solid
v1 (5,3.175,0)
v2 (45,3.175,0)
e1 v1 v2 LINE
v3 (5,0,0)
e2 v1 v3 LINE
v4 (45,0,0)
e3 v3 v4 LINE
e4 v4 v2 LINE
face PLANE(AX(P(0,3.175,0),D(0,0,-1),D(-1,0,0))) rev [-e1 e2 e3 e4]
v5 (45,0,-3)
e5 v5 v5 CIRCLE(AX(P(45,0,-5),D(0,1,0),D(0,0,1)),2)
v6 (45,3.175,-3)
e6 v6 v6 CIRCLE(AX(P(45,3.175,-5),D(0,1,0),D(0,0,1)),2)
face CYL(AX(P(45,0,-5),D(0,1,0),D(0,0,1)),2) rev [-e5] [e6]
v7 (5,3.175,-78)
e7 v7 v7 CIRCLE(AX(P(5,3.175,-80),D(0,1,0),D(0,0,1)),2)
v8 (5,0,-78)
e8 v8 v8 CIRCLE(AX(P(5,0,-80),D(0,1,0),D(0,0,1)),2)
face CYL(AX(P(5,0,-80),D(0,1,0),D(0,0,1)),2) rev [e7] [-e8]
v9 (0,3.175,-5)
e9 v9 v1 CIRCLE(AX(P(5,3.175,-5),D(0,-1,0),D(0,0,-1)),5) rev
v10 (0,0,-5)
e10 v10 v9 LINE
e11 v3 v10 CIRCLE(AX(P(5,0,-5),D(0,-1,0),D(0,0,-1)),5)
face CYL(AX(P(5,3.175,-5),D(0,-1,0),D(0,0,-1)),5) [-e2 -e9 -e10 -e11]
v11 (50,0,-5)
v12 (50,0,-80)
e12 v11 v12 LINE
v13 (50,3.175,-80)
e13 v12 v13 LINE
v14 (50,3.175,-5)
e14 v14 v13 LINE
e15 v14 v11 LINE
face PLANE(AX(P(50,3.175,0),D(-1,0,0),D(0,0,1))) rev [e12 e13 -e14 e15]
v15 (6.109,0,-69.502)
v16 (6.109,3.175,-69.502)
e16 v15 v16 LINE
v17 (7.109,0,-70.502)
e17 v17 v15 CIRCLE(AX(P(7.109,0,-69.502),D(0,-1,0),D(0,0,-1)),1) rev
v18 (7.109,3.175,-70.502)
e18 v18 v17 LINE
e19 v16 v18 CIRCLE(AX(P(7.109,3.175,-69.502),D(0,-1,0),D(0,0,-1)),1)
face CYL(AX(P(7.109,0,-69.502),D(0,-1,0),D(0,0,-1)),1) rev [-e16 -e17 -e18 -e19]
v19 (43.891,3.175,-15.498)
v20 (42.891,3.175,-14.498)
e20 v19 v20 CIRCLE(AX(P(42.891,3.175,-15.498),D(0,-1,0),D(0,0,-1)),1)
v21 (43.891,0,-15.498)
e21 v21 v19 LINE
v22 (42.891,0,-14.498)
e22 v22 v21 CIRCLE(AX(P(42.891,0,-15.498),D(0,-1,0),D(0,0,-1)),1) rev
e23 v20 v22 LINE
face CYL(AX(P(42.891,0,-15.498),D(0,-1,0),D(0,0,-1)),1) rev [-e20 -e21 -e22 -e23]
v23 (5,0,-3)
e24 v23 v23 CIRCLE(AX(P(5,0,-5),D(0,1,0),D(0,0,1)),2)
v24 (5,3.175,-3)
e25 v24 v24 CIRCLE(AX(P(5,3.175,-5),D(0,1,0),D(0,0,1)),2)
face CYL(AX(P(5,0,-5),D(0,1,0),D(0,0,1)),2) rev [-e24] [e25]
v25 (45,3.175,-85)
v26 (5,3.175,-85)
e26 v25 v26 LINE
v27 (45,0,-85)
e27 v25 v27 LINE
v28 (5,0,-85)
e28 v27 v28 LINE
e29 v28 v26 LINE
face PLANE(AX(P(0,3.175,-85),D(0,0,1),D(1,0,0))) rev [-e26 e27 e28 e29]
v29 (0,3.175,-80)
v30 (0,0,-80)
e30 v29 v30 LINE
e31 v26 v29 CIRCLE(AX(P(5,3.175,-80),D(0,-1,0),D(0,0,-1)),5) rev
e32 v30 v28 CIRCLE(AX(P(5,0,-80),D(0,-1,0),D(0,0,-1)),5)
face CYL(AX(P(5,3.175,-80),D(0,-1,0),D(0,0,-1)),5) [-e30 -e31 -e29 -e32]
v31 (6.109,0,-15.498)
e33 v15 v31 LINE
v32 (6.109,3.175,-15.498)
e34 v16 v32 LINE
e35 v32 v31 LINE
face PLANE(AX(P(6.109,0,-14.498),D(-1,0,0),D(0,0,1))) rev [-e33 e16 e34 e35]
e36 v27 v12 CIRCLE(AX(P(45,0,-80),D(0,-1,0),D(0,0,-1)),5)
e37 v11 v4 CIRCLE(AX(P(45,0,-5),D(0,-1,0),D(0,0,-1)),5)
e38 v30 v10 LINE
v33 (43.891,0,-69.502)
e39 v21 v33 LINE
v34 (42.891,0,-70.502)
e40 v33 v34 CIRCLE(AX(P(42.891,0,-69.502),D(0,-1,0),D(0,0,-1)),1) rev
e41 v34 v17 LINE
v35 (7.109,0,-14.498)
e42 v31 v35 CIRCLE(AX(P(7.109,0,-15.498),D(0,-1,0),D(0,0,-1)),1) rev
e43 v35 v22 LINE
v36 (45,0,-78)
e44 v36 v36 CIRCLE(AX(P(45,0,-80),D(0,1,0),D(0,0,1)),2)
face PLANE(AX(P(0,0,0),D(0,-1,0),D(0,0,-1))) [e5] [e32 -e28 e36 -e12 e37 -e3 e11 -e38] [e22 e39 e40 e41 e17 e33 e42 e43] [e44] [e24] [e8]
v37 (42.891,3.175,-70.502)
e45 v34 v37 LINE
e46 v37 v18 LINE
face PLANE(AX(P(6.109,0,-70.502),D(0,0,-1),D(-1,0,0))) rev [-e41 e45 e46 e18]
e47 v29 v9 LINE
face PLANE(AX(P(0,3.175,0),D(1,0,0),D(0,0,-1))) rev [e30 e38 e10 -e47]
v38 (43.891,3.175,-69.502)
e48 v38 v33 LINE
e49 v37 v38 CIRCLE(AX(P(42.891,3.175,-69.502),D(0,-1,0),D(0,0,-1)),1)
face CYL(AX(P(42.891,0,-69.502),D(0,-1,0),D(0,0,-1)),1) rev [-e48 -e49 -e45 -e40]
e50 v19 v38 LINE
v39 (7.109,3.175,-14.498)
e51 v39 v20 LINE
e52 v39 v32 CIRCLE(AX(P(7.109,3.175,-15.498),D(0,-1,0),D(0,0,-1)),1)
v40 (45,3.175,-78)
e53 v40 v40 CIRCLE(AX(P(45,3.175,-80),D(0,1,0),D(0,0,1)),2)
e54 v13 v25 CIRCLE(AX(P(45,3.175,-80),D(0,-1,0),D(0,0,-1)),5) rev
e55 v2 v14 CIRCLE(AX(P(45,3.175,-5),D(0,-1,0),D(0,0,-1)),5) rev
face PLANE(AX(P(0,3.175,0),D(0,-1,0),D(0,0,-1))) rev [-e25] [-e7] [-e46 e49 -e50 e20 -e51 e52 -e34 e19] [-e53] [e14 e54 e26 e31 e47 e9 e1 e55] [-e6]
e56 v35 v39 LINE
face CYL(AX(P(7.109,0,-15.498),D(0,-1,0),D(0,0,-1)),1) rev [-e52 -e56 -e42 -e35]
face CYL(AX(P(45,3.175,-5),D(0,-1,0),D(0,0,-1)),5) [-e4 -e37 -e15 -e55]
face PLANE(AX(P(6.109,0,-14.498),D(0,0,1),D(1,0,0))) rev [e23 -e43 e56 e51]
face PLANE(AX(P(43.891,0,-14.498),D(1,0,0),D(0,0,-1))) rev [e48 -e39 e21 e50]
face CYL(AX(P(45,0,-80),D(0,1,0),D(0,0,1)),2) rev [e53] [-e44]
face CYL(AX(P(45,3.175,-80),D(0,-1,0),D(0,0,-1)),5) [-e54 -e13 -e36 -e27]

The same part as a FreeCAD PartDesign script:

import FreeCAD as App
import Part
import Sketcher

V = App.Vector


def edges_at(feature, points):
    """Names of the edges that pass closest to the given points."""
    edges = feature.Shape.Edges
    near = lambda p: min(range(len(edges)), key=lambda i: edges[i].distToShape(Part.Vertex(*p))[0])
    return sorted({f"Edge{near(p) + 1}" for p in points})

doc = App.newDocument("Part")
body = doc.addObject("PartDesign::Body", "Body")

# Sketch on XZ plane
sketch1 = body.newObject("Sketcher::SketchObject", "Sketch")
sketch1.AttachmentSupport = (doc.getObject("XZ_Plane"), [""])
sketch1.MapMode = "FlatFace"
sketch1.addGeometry([
    Part.LineSegment(V(0, -85, 0), V(0, 0, 0)),
    Part.LineSegment(V(0, 0, 0), V(50, 0, 0)),
    Part.LineSegment(V(50, 0, 0), V(50, -85, 0)),
    Part.LineSegment(V(50, -85, 0), V(0, -85, 0)),
], False)
sketch1.addConstraint([
    Sketcher.Constraint("Coincident", 0, 2, 1, 1),
    Sketcher.Constraint("Coincident", 1, 2, 2, 1),
    Sketcher.Constraint("Coincident", 2, 2, 3, 1),
    Sketcher.Constraint("Coincident", 3, 2, 0, 1),
    Sketcher.Constraint("Vertical", 0),
    Sketcher.Constraint("Horizontal", 1),
    Sketcher.Constraint("Vertical", 2),
    Sketcher.Constraint("Horizontal", 3),
    Sketcher.Constraint("Coincident", 0, 2, -1, 1),
    Sketcher.Constraint("DistanceX", 1, 1, 1, 2, 50.0),
    Sketcher.Constraint("DistanceY", 0, 1, 0, 2, 85.0),
])
pad1 = body.newObject("PartDesign::Pad", "Pad")
pad1.Profile = sketch1
pad1.Length = 3.175
pad1.Reversed = True

# Sketch on XZ plane
sketch2 = body.newObject("Sketcher::SketchObject", "Sketch001")
sketch2.AttachmentSupport = (doc.getObject("XZ_Plane"), [""])
sketch2.MapMode = "FlatFace"
sketch2.AttachmentOffset = App.Placement(V(0, 0, -3.175), App.Rotation())
sketch2.addGeometry([
    Part.LineSegment(V(6, -71, 0), V(6, -14, 0)),
    Part.LineSegment(V(6, -14, 0), V(44, -14, 0)),
    Part.LineSegment(V(44, -14, 0), V(44, -71, 0)),
    Part.LineSegment(V(44, -71, 0), V(6, -71, 0)),
], False)
sketch2.addConstraint([
    Sketcher.Constraint("Coincident", 0, 2, 1, 1),
    Sketcher.Constraint("Coincident", 1, 2, 2, 1),
    Sketcher.Constraint("Coincident", 2, 2, 3, 1),
    Sketcher.Constraint("Coincident", 3, 2, 0, 1),
    Sketcher.Constraint("Vertical", 0),
    Sketcher.Constraint("Horizontal", 1),
    Sketcher.Constraint("Vertical", 2),
    Sketcher.Constraint("Horizontal", 3),
    Sketcher.Constraint("DistanceX", 1, 1, 1, 2, 37.782),
    Sketcher.Constraint("DistanceY", 0, 1, 0, 2, 56.004),
    Sketcher.Constraint("DistanceX", -1, 1, 0, 2, 6.109),
    Sketcher.Constraint("DistanceY", 0, 2, -1, 1, 14.498),
])
pocket1 = body.newObject("PartDesign::Pocket", "Pocket")
pocket1.Profile = sketch2
pocket1.Type = "ThroughAll"
pocket1.Reversed = True
doc.recompute()

fillet = body.newObject("PartDesign::Fillet", "Fillet")
fillet.Base = (pocket1, edges_at(pocket1, [
    (6.109, 1.587, -14.498),
    (6.109, 1.587, -70.502),
    (43.891, 1.587, -70.502),
    (43.891, 1.587, -14.498),
]))
fillet.Radius = 1
doc.recompute()

fillet2 = body.newObject("PartDesign::Fillet", "Fillet001")
fillet2.Base = (fillet, edges_at(fillet, [
    (0, 1.587, -85),
    (50, 1.587, -85),
    (50, 1.587, 0),
    (0, 1.587, 0),
]))
fillet2.Radius = 5

# Sketch on XZ plane
sketch3 = body.newObject("Sketcher::SketchObject", "Sketch002")
sketch3.AttachmentSupport = (doc.getObject("XZ_Plane"), [""])
sketch3.MapMode = "FlatFace"
sketch3.AttachmentOffset = App.Placement(V(0, 0, -3.175), App.Rotation())
sketch3.addGeometry([
    Part.Circle(V(5, -5, 0), V(0, 0, 1), 2),
    Part.Circle(V(45, -5, 0), V(0, 0, 1), 2),
    Part.Circle(V(45, -80, 0), V(0, 0, 1), 2),
    Part.Circle(V(5, -80, 0), V(0, 0, 1), 2),
], False)
sketch3.addConstraint([
    Sketcher.Constraint("Equal", 0, 1),
    Sketcher.Constraint("Equal", 1, 2),
    Sketcher.Constraint("Equal", 2, 3),
    Sketcher.Constraint("Horizontal", 0, 3, 1, 3),
    Sketcher.Constraint("Horizontal", 2, 3, 3, 3),
    Sketcher.Constraint("Vertical", 1, 3, 2, 3),
    Sketcher.Constraint("Vertical", 0, 3, 3, 3),
    Sketcher.Constraint("Diameter", 0, 4.0),
    Sketcher.Constraint("DistanceX", -1, 1, 0, 3, 5.0),
    Sketcher.Constraint("DistanceY", 0, 3, -1, 1, 5.0),
    Sketcher.Constraint("DistanceX", -1, 1, 1, 3, 45.0),
    Sketcher.Constraint("DistanceY", 2, 3, -1, 1, 80.0),
])
pocket2 = body.newObject("PartDesign::Pocket", "Pocket001")
pocket2.Profile = sketch3
pocket2.Type = "ThroughAll"
pocket2.Reversed = True

doc.recompute()
